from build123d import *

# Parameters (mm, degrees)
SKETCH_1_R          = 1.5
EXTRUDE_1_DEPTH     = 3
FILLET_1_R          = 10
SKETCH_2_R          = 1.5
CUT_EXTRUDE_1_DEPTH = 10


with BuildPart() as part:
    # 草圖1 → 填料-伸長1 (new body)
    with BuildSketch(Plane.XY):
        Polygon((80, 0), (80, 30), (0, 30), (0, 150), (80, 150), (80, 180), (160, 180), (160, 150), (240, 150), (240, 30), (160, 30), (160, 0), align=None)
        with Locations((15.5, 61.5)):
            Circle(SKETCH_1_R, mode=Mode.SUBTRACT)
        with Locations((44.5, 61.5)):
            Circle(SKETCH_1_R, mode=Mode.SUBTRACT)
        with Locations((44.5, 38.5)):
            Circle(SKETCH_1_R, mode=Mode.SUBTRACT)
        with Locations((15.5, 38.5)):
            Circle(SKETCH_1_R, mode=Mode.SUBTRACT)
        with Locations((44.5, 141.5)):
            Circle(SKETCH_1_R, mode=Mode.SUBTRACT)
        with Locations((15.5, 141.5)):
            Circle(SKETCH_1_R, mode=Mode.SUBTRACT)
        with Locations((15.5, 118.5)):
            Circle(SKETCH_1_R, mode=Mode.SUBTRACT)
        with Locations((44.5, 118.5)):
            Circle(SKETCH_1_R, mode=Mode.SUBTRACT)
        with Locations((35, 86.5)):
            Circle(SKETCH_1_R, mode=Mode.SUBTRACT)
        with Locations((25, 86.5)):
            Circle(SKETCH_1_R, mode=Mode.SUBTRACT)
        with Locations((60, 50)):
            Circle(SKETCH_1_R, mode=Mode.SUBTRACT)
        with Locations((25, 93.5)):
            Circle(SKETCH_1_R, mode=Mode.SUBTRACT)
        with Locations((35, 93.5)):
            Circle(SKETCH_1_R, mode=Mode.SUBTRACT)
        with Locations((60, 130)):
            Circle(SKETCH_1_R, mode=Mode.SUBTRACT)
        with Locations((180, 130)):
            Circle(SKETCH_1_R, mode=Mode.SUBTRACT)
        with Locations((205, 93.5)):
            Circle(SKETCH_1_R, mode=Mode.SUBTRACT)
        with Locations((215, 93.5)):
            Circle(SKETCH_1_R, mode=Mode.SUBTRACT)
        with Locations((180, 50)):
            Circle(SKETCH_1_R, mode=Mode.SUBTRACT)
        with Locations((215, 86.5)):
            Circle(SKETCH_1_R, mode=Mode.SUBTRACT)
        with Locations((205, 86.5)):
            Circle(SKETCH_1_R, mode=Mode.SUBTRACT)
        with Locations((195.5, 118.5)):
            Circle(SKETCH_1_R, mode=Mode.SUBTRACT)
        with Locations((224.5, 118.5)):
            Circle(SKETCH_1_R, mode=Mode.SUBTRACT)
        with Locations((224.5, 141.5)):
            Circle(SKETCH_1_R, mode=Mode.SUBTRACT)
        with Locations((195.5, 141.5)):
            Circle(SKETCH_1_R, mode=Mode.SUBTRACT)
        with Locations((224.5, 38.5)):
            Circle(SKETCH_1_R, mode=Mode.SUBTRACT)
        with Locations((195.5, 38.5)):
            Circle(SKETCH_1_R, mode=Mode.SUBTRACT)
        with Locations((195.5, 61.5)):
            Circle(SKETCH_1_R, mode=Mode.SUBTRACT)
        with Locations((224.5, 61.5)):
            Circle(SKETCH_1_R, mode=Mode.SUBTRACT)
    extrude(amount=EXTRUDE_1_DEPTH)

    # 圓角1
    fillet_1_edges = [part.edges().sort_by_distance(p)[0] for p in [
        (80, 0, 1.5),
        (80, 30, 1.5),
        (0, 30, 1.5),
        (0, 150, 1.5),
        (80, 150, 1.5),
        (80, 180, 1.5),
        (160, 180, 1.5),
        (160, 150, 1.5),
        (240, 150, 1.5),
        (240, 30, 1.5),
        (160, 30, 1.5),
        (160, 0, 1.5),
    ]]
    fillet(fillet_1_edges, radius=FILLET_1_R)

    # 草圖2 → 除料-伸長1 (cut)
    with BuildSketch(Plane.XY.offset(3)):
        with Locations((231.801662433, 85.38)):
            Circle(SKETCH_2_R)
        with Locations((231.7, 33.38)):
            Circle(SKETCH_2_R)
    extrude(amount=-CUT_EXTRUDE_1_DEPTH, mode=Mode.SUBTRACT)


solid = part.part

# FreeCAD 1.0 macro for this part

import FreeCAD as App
import Part
import Sketcher
from FreeCAD import Vector


def edges_at(feature, points):
    """Names of the edges that pass closest to the given points."""
    edges = feature.Shape.Edges
    near = lambda p: min(range(len(edges)), key=lambda i: edges[i].distToShape(Part.Vertex(*p))[0])
    return sorted({f"Edge{near(p) + 1}" for p in points})

doc = App.newDocument("Part")
params = doc.addObject("Spreadsheet::Sheet", "Params")
for row, (alias, value) in enumerate([
    ("sketch1_diameter", "3 mm"),
    ("sketch1_width", "80 mm"),
    ("sketch1_height", "30 mm"),
    ("sketch1_height2", "120 mm"),
    ("pad1_length", "3 mm"),
    ("fillet_radius", "10 mm"),
    ("sketch2_diameter", "3 mm"),
    ("pocket1_length", "10 mm"),
], start=1):
    params.set(f"A{row}", alias)
    params.set(f"B{row}", "=" + value)
    params.setAlias(f"B{row}", alias)

body = doc.addObject("PartDesign::Body", "Body")

sketch1 = body.newObject("Sketcher::SketchObject", "Sketch")
sketch1.AttachmentSupport = (doc.getObject("XY_Plane"), [""])
sketch1.MapMode = "FlatFace"
sketch1.addGeometry(Part.LineSegment(Vector(80, 30, 0), Vector(80, 0, 0)), False)
sketch1.addGeometry(Part.LineSegment(Vector(80, 0, 0), Vector(160, 0, 0)), False)
sketch1.addGeometry(Part.LineSegment(Vector(160, 0, 0), Vector(160, 30, 0)), False)
sketch1.addGeometry(Part.LineSegment(Vector(160, 30, 0), Vector(240, 30, 0)), False)
sketch1.addGeometry(Part.LineSegment(Vector(240, 30, 0), Vector(240, 150, 0)), False)
sketch1.addGeometry(Part.LineSegment(Vector(240, 150, 0), Vector(160, 150, 0)), False)
sketch1.addGeometry(Part.LineSegment(Vector(160, 150, 0), Vector(160, 180, 0)), False)
sketch1.addGeometry(Part.LineSegment(Vector(160, 180, 0), Vector(80, 180, 0)), False)
sketch1.addGeometry(Part.LineSegment(Vector(80, 180, 0), Vector(80, 150, 0)), False)
sketch1.addGeometry(Part.LineSegment(Vector(80, 150, 0), Vector(0, 150, 0)), False)
sketch1.addGeometry(Part.LineSegment(Vector(0, 150, 0), Vector(0, 30, 0)), False)
sketch1.addGeometry(Part.LineSegment(Vector(0, 30, 0), Vector(80, 30, 0)), False)
sketch1.addGeometry(Part.Circle(Vector(224.5, 38.5, 0), Vector(0, 0, 1), 1.5), False)
sketch1.addGeometry(Part.Circle(Vector(195.5, 38.5, 0), Vector(0, 0, 1), 1.5), False)
sketch1.addGeometry(Part.Circle(Vector(180, 50, 0), Vector(0, 0, 1), 1.5), False)
sketch1.addGeometry(Part.Circle(Vector(224.5, 61.5, 0), Vector(0, 0, 1), 1.5), False)
sketch1.addGeometry(Part.Circle(Vector(195.5, 61.5, 0), Vector(0, 0, 1), 1.5), False)
sketch1.addGeometry(Part.Circle(Vector(215, 86.5, 0), Vector(0, 0, 1), 1.5), False)
sketch1.addGeometry(Part.Circle(Vector(205, 86.5, 0), Vector(0, 0, 1), 1.5), False)
sketch1.addGeometry(Part.Circle(Vector(44.5, 38.5, 0), Vector(0, 0, 1), 1.5), False)
sketch1.addGeometry(Part.Circle(Vector(60, 50, 0), Vector(0, 0, 1), 1.5), False)
sketch1.addGeometry(Part.Circle(Vector(15.5, 38.5, 0), Vector(0, 0, 1), 1.5), False)
sketch1.addGeometry(Part.Circle(Vector(44.5, 61.5, 0), Vector(0, 0, 1), 1.5), False)
sketch1.addGeometry(Part.Circle(Vector(15.5, 61.5, 0), Vector(0, 0, 1), 1.5), False)
sketch1.addGeometry(Part.Circle(Vector(35, 86.5, 0), Vector(0, 0, 1), 1.5), False)
sketch1.addGeometry(Part.Circle(Vector(25, 86.5, 0), Vector(0, 0, 1), 1.5), False)
sketch1.addGeometry(Part.Circle(Vector(215, 93.5, 0), Vector(0, 0, 1), 1.5), False)
sketch1.addGeometry(Part.Circle(Vector(205, 93.5, 0), Vector(0, 0, 1), 1.5), False)
sketch1.addGeometry(Part.Circle(Vector(224.5, 118.5, 0), Vector(0, 0, 1), 1.5), False)
sketch1.addGeometry(Part.Circle(Vector(195.5, 118.5, 0), Vector(0, 0, 1), 1.5), False)
sketch1.addGeometry(Part.Circle(Vector(224.5, 141.5, 0), Vector(0, 0, 1), 1.5), False)
sketch1.addGeometry(Part.Circle(Vector(180, 130, 0), Vector(0, 0, 1), 1.5), False)
sketch1.addGeometry(Part.Circle(Vector(195.5, 141.5, 0), Vector(0, 0, 1), 1.5), False)
sketch1.addGeometry(Part.Circle(Vector(35, 93.5, 0), Vector(0, 0, 1), 1.5), False)
sketch1.addGeometry(Part.Circle(Vector(25, 93.5, 0), Vector(0, 0, 1), 1.5), False)
sketch1.addGeometry(Part.Circle(Vector(44.5, 118.5, 0), Vector(0, 0, 1), 1.5), False)
sketch1.addGeometry(Part.Circle(Vector(15.5, 118.5, 0), Vector(0, 0, 1), 1.5), False)
sketch1.addGeometry(Part.Circle(Vector(60, 130, 0), Vector(0, 0, 1), 1.5), False)
sketch1.addGeometry(Part.Circle(Vector(44.5, 141.5, 0), Vector(0, 0, 1), 1.5), False)
sketch1.addGeometry(Part.Circle(Vector(15.5, 141.5, 0), Vector(0, 0, 1), 1.5), False)
sketch1.addConstraint(Sketcher.Constraint("Coincident", 0, 2, 1, 1))
sketch1.addConstraint(Sketcher.Constraint("Coincident", 1, 2, 2, 1))
sketch1.addConstraint(Sketcher.Constraint("Coincident", 2, 2, 3, 1))
sketch1.addConstraint(Sketcher.Constraint("Coincident", 3, 2, 4, 1))
sketch1.addConstraint(Sketcher.Constraint("Coincident", 4, 2, 5, 1))
sketch1.addConstraint(Sketcher.Constraint("Coincident", 5, 2, 6, 1))
sketch1.addConstraint(Sketcher.Constraint("Coincident", 6, 2, 7, 1))
sketch1.addConstraint(Sketcher.Constraint("Coincident", 7, 2, 8, 1))
sketch1.addConstraint(Sketcher.Constraint("Coincident", 8, 2, 9, 1))
sketch1.addConstraint(Sketcher.Constraint("Coincident", 9, 2, 10, 1))
sketch1.addConstraint(Sketcher.Constraint("Coincident", 10, 2, 11, 1))
sketch1.addConstraint(Sketcher.Constraint("Coincident", 11, 2, 0, 1))
sketch1.addConstraint(Sketcher.Constraint("Vertical", 0))
sketch1.addConstraint(Sketcher.Constraint("Horizontal", 1))
sketch1.addConstraint(Sketcher.Constraint("Vertical", 2))
sketch1.addConstraint(Sketcher.Constraint("Horizontal", 3))
sketch1.addConstraint(Sketcher.Constraint("Vertical", 4))
sketch1.addConstraint(Sketcher.Constraint("Horizontal", 5))
sketch1.addConstraint(Sketcher.Constraint("Vertical", 6))
sketch1.addConstraint(Sketcher.Constraint("Horizontal", 7))
sketch1.addConstraint(Sketcher.Constraint("Vertical", 8))
sketch1.addConstraint(Sketcher.Constraint("Horizontal", 9))
sketch1.addConstraint(Sketcher.Constraint("Vertical", 10))
sketch1.addConstraint(Sketcher.Constraint("Horizontal", 11))
sketch1.addConstraint(Sketcher.Constraint("Equal", 12, 13))
sketch1.addConstraint(Sketcher.Constraint("Equal", 13, 14))
sketch1.addConstraint(Sketcher.Constraint("Equal", 14, 15))
sketch1.addConstraint(Sketcher.Constraint("Equal", 15, 16))
sketch1.addConstraint(Sketcher.Constraint("Equal", 16, 17))
sketch1.addConstraint(Sketcher.Constraint("Equal", 17, 18))
sketch1.addConstraint(Sketcher.Constraint("Equal", 18, 19))
sketch1.addConstraint(Sketcher.Constraint("Equal", 19, 20))
sketch1.addConstraint(Sketcher.Constraint("Equal", 20, 21))
sketch1.addConstraint(Sketcher.Constraint("Equal", 21, 22))
sketch1.addConstraint(Sketcher.Constraint("Equal", 22, 23))
sketch1.addConstraint(Sketcher.Constraint("Equal", 23, 24))
sketch1.addConstraint(Sketcher.Constraint("Equal", 24, 25))
sketch1.addConstraint(Sketcher.Constraint("Equal", 25, 26))
sketch1.addConstraint(Sketcher.Constraint("Equal", 26, 27))
sketch1.addConstraint(Sketcher.Constraint("Equal", 27, 28))
sketch1.addConstraint(Sketcher.Constraint("Equal", 28, 29))
sketch1.addConstraint(Sketcher.Constraint("Equal", 29, 30))
sketch1.addConstraint(Sketcher.Constraint("Equal", 30, 31))
sketch1.addConstraint(Sketcher.Constraint("Equal", 31, 32))
sketch1.addConstraint(Sketcher.Constraint("Equal", 32, 33))
sketch1.addConstraint(Sketcher.Constraint("Equal", 33, 34))
sketch1.addConstraint(Sketcher.Constraint("Equal", 34, 35))
sketch1.addConstraint(Sketcher.Constraint("Equal", 35, 36))
sketch1.addConstraint(Sketcher.Constraint("Equal", 36, 37))
sketch1.addConstraint(Sketcher.Constraint("Equal", 37, 38))
sketch1.addConstraint(Sketcher.Constraint("Equal", 38, 39))
sketch1.addConstraint(Sketcher.Constraint("PointOnObject", 0, 2, -1))
sketch1.addConstraint(Sketcher.Constraint("PointOnObject", 9, 2, -2))
sketch1.addConstraint(Sketcher.Constraint("Horizontal", 12, 3, 13, 3))
sketch1.addConstraint(Sketcher.Constraint("Horizontal", 15, 3, 16, 3))
sketch1.addConstraint(Sketcher.Constraint("Horizontal", 17, 3, 18, 3))
sketch1.addConstraint(Sketcher.Constraint("Horizontal", 13, 3, 19, 3))
sketch1.addConstraint(Sketcher.Constraint("Horizontal", 14, 3, 20, 3))
sketch1.addConstraint(Sketcher.Constraint("Horizontal", 19, 3, 21, 3))
sketch1.addConstraint(Sketcher.Constraint("Horizontal", 16, 3, 22, 3))
sketch1.addConstraint(Sketcher.Constraint("Horizontal", 22, 3, 23, 3))
sketch1.addConstraint(Sketcher.Constraint("Horizontal", 18, 3, 24, 3))
sketch1.addConstraint(Sketcher.Constraint("Horizontal", 24, 3, 25, 3))
sketch1.addConstraint(Sketcher.Constraint("Horizontal", 26, 3, 27, 3))
sketch1.addConstraint(Sketcher.Constraint("Horizontal", 28, 3, 29, 3))
sketch1.addConstraint(Sketcher.Constraint("Horizontal", 30, 3, 32, 3))
sketch1.addConstraint(Sketcher.Constraint("Horizontal", 27, 3, 33, 3))
sketch1.addConstraint(Sketcher.Constraint("Horizontal", 33, 3, 34, 3))
sketch1.addConstraint(Sketcher.Constraint("Horizontal", 29, 3, 35, 3))
sketch1.addConstraint(Sketcher.Constraint("Horizontal", 35, 3, 36, 3))
sketch1.addConstraint(Sketcher.Constraint("Horizontal", 31, 3, 37, 3))
sketch1.addConstraint(Sketcher.Constraint("Horizontal", 32, 3, 38, 3))
sketch1.addConstraint(Sketcher.Constraint("Horizontal", 38, 3, 39, 3))
sketch1.addConstraint(Sketcher.Constraint("Horizontal", 5, 2, 8, 2))
sketch1.addConstraint(Sketcher.Constraint("Horizontal", 3, 2, 10, 2))
sketch1.addConstraint(Sketcher.Constraint("Vertical", 12, 3, 15, 3))
sketch1.addConstraint(Sketcher.Constraint("Vertical", 13, 3, 16, 3))
sketch1.addConstraint(Sketcher.Constraint("Vertical", 19, 3, 22, 3))
sketch1.addConstraint(Sketcher.Constraint("Vertical", 21, 3, 23, 3))
sketch1.addConstraint(Sketcher.Constraint("Vertical", 17, 3, 26, 3))
sketch1.addConstraint(Sketcher.Constraint("Vertical", 18, 3, 27, 3))
sketch1.addConstraint(Sketcher.Constraint("Vertical", 15, 3, 28, 3))
sketch1.addConstraint(Sketcher.Constraint("Vertical", 16, 3, 29, 3))
sketch1.addConstraint(Sketcher.Constraint("Vertical", 28, 3, 30, 3))
sketch1.addConstraint(Sketcher.Constraint("Vertical", 14, 3, 31, 3))
sketch1.addConstraint(Sketcher.Constraint("Vertical", 29, 3, 32, 3))
sketch1.addConstraint(Sketcher.Constraint("Vertical", 24, 3, 33, 3))
sketch1.addConstraint(Sketcher.Constraint("Vertical", 25, 3, 34, 3))
sketch1.addConstraint(Sketcher.Constraint("Vertical", 22, 3, 35, 3))
sketch1.addConstraint(Sketcher.Constraint("Vertical", 23, 3, 36, 3))
sketch1.addConstraint(Sketcher.Constraint("Vertical", 20, 3, 37, 3))
sketch1.addConstraint(Sketcher.Constraint("Vertical", 35, 3, 38, 3))
sketch1.addConstraint(Sketcher.Constraint("Vertical", 36, 3, 39, 3))
sketch1.addConstraint(Sketcher.Constraint("Vertical", 2, 2, 5, 2))
sketch1.addConstraint(Sketcher.Constraint("Vertical", 0, 2, 7, 2))
sketch1.addConstraint(Sketcher.Constraint("Equal", 1, 3))
sketch1.addConstraint(Sketcher.Constraint("Equal", 7, 9))
sketch1.addConstraint(Sketcher.Constraint("Equal", 2, 6))
sketch1.addConstraint(Sketcher.Constraint("Diameter", 12, 3.0))
sketch1.addConstraint(Sketcher.Constraint("DistanceX", 1, 1, 1, 2, 80.0))
sketch1.addConstraint(Sketcher.Constraint("DistanceY", 0, 2, 0, 1, 30.0))
sketch1.addConstraint(Sketcher.Constraint("DistanceY", 4, 1, 4, 2, 120.0))
sketch1.addConstraint(Sketcher.Constraint("DistanceX", -1, 1, 14, 3, 180.0))
sketch1.addConstraint(Sketcher.Constraint("DistanceY", -1, 1, 14, 3, 50.0))
sketch1.addConstraint(Sketcher.Constraint("DistanceX", -1, 1, 17, 3, 215.0))
sketch1.addConstraint(Sketcher.Constraint("DistanceX", -1, 1, 18, 3, 205.0))
sketch1.addConstraint(Sketcher.Constraint("DistanceX", -1, 1, 20, 3, 60.0))
sketch1.addConstraint(Sketcher.Constraint("DistanceX", -1, 1, 24, 3, 35.0))
sketch1.addConstraint(Sketcher.Constraint("DistanceX", -1, 1, 25, 3, 25.0))
sketch1.addConstraint(Sketcher.Constraint("DistanceY", -1, 1, 31, 3, 130.0))
sketch1.addConstraint(Sketcher.Constraint("DistanceX", 13, 3, 12, 3, 29.0))
sketch1.addConstraint(Sketcher.Constraint("DistanceY", 12, 3, 15, 3, 23.0))
sketch1.addConstraint(Sketcher.Constraint("DistanceY", 15, 3, 17, 3, 25.0))
sketch1.addConstraint(Sketcher.Constraint("DistanceX", 19, 3, 13, 3, 151.0))
sketch1.addConstraint(Sketcher.Constraint("DistanceX", 21, 3, 19, 3, 29.0))
sketch1.addConstraint(Sketcher.Constraint("DistanceY", 17, 3, 26, 3, 7.0))
sketch1.addConstraint(Sketcher.Constraint("DistanceY", 26, 3, 28, 3, 25.0))
sketch1.addConstraint(Sketcher.Constraint("DistanceY", 28, 3, 30, 3, 23.0))
sketch1.addConstraint(Sketcher.Constraint("DistanceX", -1, 1, 12, 3, 224.5))
sketch1.addConstraint(Sketcher.Constraint("DistanceY", -1, 1, 12, 3, 38.5))
sketch1.setExpression("Constraints[98]", "Params.sketch1_diameter")
sketch1.setExpression("Constraints[99]", "Params.sketch1_width")
sketch1.setExpression("Constraints[100]", "Params.sketch1_height")
sketch1.setExpression("Constraints[101]", "Params.sketch1_height2")
pad1 = body.newObject("PartDesign::Pad", "Pad")
pad1.Profile = sketch1
pad1.setExpression("Length", "Params.pad1_length")
doc.recompute()

fillet = body.newObject("PartDesign::Fillet", "Fillet")
fillet.Base = (pad1, edges_at(pad1, [
    (80, 0, 1.5),
    (80, 30, 1.5),
    (0, 30, 1.5),
    (0, 150, 1.5),
    (80, 150, 1.5),
    (80, 180, 1.5),
    (160, 180, 1.5),
    (160, 150, 1.5),
    (240, 150, 1.5),
    (240, 30, 1.5),
    (160, 30, 1.5),
    (160, 0, 1.5),
]))
fillet.setExpression("Radius", "Params.fillet_radius")

sketch2 = body.newObject("Sketcher::SketchObject", "Sketch001")
sketch2.AttachmentSupport = (doc.getObject("XY_Plane"), [""])
sketch2.MapMode = "FlatFace"
sketch2.AttachmentOffset = App.Placement(Vector(0, 0, 3), App.Rotation())
sketch2.addGeometry(Part.Circle(Vector(231.8, 85.4, 0), Vector(0, 0, 1), 1.5), False)
sketch2.addGeometry(Part.Circle(Vector(231.7, 33.4, 0), Vector(0, 0, 1), 1.5), False)
sketch2.addConstraint(Sketcher.Constraint("Equal", 0, 1))
sketch2.addConstraint(Sketcher.Constraint("Diameter", 0, 3.0))
sketch2.addConstraint(Sketcher.Constraint("DistanceY", 1, 3, 0, 3, 52.0))
sketch2.addConstraint(Sketcher.Constraint("DistanceX", -1, 1, 1, 3, 231.7))
sketch2.addConstraint(Sketcher.Constraint("DistanceY", -1, 1, 0, 3, 85.38))
sketch2.addConstraint(Sketcher.Constraint("DistanceX", -1, 1, 0, 3, 231.801662))
sketch2.setExpression("Constraints[1]", "Params.sketch2_diameter")
pocket1 = body.newObject("PartDesign::Pocket", "Pocket")
pocket1.Profile = sketch2
pocket1.setExpression("Length", "Params.pocket1_length")

doc.recompute()
